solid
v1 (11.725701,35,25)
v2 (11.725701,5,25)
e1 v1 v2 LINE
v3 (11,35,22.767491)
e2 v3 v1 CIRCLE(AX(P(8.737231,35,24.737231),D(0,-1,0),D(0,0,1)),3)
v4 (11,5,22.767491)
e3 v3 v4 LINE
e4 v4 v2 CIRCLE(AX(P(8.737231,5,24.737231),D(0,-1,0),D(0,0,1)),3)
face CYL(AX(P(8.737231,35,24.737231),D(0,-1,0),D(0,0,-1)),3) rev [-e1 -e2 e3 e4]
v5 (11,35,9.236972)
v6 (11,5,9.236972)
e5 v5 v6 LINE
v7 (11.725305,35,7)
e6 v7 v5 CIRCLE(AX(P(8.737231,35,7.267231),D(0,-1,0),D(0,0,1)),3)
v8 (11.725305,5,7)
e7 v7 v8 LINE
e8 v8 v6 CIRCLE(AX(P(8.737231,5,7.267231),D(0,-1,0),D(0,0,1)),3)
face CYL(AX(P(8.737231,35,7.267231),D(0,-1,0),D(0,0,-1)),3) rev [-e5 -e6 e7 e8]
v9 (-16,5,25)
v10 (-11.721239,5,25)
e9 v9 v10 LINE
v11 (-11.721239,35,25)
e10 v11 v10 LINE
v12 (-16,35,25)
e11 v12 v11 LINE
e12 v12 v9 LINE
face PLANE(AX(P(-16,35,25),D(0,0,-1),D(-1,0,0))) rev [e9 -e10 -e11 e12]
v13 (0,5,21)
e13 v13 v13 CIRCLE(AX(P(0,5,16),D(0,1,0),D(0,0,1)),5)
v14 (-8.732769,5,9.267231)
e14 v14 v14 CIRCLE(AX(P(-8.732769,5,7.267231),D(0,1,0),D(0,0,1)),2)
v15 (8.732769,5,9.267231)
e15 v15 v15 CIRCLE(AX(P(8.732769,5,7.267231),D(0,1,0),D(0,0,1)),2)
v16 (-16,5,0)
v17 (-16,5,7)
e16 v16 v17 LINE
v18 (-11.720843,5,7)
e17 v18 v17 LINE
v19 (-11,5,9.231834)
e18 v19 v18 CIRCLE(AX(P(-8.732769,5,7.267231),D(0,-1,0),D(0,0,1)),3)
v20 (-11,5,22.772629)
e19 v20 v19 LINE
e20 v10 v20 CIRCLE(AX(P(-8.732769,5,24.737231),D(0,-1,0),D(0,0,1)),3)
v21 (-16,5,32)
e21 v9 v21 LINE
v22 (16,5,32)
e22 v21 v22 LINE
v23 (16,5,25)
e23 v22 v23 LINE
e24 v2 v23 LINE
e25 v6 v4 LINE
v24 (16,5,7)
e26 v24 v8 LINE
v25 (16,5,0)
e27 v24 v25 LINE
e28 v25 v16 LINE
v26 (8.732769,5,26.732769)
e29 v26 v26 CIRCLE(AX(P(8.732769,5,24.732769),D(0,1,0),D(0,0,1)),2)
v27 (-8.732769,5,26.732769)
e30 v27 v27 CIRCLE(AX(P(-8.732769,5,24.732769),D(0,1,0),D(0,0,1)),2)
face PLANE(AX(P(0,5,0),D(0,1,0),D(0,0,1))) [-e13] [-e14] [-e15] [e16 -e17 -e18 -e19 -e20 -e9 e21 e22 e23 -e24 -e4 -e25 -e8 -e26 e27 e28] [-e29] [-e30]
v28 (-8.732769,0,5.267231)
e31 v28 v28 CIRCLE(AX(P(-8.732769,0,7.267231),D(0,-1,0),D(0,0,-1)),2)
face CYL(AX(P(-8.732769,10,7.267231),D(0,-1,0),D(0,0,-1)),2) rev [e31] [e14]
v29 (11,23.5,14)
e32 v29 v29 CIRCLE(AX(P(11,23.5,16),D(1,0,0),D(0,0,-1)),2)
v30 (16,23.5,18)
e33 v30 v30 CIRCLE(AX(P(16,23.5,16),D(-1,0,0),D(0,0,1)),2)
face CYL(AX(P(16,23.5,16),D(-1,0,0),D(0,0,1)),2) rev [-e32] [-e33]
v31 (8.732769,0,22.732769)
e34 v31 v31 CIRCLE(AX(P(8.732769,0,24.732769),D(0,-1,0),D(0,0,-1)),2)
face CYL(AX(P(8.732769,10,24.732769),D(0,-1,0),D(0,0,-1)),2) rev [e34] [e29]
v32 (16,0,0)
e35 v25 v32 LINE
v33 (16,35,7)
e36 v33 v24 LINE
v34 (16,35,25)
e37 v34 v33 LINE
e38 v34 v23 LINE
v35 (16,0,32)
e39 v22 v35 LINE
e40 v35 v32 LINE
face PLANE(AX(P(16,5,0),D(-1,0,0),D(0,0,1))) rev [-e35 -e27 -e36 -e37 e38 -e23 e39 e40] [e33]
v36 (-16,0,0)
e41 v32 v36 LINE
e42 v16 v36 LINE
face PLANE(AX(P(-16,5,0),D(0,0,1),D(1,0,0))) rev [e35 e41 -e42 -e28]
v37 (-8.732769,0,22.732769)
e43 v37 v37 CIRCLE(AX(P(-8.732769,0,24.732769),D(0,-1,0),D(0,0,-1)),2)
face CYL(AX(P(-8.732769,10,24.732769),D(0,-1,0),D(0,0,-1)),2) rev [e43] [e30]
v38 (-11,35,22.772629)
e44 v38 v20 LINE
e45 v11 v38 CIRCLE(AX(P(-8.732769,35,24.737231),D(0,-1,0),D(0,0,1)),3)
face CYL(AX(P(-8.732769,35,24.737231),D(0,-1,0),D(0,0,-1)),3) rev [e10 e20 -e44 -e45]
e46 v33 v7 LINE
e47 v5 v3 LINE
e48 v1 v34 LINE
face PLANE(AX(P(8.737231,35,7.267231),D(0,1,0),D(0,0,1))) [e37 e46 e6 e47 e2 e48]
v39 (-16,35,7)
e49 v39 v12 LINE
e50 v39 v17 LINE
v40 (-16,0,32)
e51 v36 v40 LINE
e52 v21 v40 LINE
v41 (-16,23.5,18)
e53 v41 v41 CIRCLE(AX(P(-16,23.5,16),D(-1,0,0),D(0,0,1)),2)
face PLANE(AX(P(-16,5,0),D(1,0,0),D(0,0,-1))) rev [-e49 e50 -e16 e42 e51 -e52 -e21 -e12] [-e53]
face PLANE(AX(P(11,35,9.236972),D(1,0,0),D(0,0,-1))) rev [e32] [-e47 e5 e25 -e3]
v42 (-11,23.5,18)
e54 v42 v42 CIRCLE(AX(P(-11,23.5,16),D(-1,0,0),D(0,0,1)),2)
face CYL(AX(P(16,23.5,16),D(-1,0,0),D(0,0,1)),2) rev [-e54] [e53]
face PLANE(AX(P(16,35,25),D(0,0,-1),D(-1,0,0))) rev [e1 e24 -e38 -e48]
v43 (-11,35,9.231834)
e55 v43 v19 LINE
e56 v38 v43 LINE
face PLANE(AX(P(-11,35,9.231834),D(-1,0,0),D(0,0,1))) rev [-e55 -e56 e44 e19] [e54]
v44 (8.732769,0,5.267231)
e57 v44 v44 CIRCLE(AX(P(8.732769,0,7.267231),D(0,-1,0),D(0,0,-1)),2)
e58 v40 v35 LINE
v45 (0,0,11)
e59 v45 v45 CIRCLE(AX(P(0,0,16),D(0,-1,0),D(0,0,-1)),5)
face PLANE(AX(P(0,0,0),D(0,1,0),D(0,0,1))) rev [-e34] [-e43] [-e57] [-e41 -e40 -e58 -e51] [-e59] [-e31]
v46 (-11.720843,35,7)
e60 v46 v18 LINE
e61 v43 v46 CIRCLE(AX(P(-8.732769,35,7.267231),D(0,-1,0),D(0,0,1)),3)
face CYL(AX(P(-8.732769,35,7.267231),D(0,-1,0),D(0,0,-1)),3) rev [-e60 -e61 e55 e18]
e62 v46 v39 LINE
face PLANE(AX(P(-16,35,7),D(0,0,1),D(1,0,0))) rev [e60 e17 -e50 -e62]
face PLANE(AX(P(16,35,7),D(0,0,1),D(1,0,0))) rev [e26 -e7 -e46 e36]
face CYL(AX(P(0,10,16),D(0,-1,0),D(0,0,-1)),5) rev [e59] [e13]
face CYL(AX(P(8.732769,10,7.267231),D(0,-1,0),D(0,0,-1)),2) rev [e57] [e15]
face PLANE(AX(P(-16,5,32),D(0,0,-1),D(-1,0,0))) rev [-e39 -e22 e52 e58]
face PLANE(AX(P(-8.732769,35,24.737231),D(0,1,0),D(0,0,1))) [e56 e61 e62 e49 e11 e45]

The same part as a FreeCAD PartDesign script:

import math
import FreeCAD as App
import Part
import Sketcher
from FreeCAD import Vector
Q = App.Units.Quantity

doc = App.newDocument("Part")
body = doc.addObject("PartDesign::Body", "Body")

# Sketch on XZ plane
sketch1 = body.newObject("Sketcher::SketchObject", "Sketch")
sketch1.AttachmentSupport = (doc.getObject("XZ_Plane"), [""])
sketch1.MapMode = "FlatFace"
sketch1.addGeometry(Part.LineSegment(Vector(-16, 0, 0), Vector(-16, 32, 0)), False)
sketch1.addGeometry(Part.LineSegment(Vector(-16, 32, 0), Vector(16, 32, 0)), False)
sketch1.addGeometry(Part.LineSegment(Vector(16, 32, 0), Vector(16, 0, 0)), False)
sketch1.addGeometry(Part.LineSegment(Vector(16, 0, 0), Vector(-16, 0, 0)), False)
sketch1.addConstraint(Sketcher.Constraint("Coincident", 0, 2, 1, 1))
sketch1.addConstraint(Sketcher.Constraint("Coincident", 1, 2, 2, 1))
sketch1.addConstraint(Sketcher.Constraint("Coincident", 2, 2, 3, 1))
sketch1.addConstraint(Sketcher.Constraint("Coincident", 3, 2, 0, 1))
sketch1.addConstraint(Sketcher.Constraint("Vertical", 0))
sketch1.addConstraint(Sketcher.Constraint("Horizontal", 1))
sketch1.addConstraint(Sketcher.Constraint("Vertical", 2))
sketch1.addConstraint(Sketcher.Constraint("Horizontal", 3))
sketch1.addConstraint(Sketcher.Constraint("Symmetric", 2, 2, 3, 2, -1, 1))
sketch1.addConstraint(Sketcher.Constraint("Equal", 3, 0))
sketch1.addConstraint(Sketcher.Constraint("DistanceX", 1, 1, 1, 2, Q("32 mm")))
pad1 = body.newObject("PartDesign::Pad", "Pad")
pad1.Profile = sketch1
pad1.Length = 5
pad1.Reversed = True

# Sketch on XZ plane
sketch2 = body.newObject("Sketcher::SketchObject", "Sketch001")
sketch2.AttachmentSupport = (doc.getObject("XZ_Plane"), [""])
sketch2.MapMode = "FlatFace"
sketch2.AttachmentOffset = App.Placement(Vector(0, 0, -5), App.Rotation())
sketch2.addGeometry(Part.LineSegment(Vector(-11.7, 7, 0), Vector(-16, 7, 0)), False)
sketch2.addGeometry(Part.LineSegment(Vector(-16, 7, 0), Vector(-16, 25, 0)), False)
sketch2.addGeometry(Part.LineSegment(Vector(-16, 25, 0), Vector(-11.7, 25, 0)), False)
sketch2.addGeometry(Part.ArcOfCircle(Part.Circle(Vector(-8.7, 24.7, 0), Vector(0, 0, 1), 3), math.radians(175), math.radians(221)), False)
sketch2.addGeometry(Part.LineSegment(Vector(-11, 22.8, 0), Vector(-11, 9.2, 0)), False)
sketch2.addGeometry(Part.ArcOfCircle(Part.Circle(Vector(-8.7, 7.3, 0), Vector(0, 0, 1), 3), math.radians(139), math.radians(185)), False)
sketch2.addGeometry(Part.LineSegment(Vector(11.7, 25, 0), Vector(16, 25, 0)), False)
sketch2.addGeometry(Part.LineSegment(Vector(16, 25, 0), Vector(16, 7, 0)), False)
sketch2.addGeometry(Part.LineSegment(Vector(16, 7, 0), Vector(11.7, 7, 0)), False)
sketch2.addGeometry(Part.ArcOfCircle(Part.Circle(Vector(8.7, 7.3, 0), Vector(0, 0, 1), 3), math.radians(-5), math.radians(41)), False)
sketch2.addGeometry(Part.LineSegment(Vector(11, 9.2, 0), Vector(11, 22.8, 0)), False)
sketch2.addGeometry(Part.ArcOfCircle(Part.Circle(Vector(8.7, 24.7, 0), Vector(0, 0, 1), 3), math.radians(-41), math.radians(5)), False)
sketch2.addConstraint(Sketcher.Constraint("Coincident", 0, 2, 1, 1))
sketch2.addConstraint(Sketcher.Constraint("Coincident", 1, 2, 2, 1))
sketch2.addConstraint(Sketcher.Constraint("Coincident", 2, 2, 3, 1))
sketch2.addConstraint(Sketcher.Constraint("Coincident", 3, 2, 4, 1))
sketch2.addConstraint(Sketcher.Constraint("Coincident", 4, 2, 5, 1))
sketch2.addConstraint(Sketcher.Constraint("Coincident", 5, 2, 0, 1))
sketch2.addConstraint(Sketcher.Constraint("Coincident", 6, 2, 7, 1))
sketch2.addConstraint(Sketcher.Constraint("Coincident", 7, 2, 8, 1))
sketch2.addConstraint(Sketcher.Constraint("Coincident", 8, 2, 9, 1))
sketch2.addConstraint(Sketcher.Constraint("Coincident", 9, 2, 10, 1))
sketch2.addConstraint(Sketcher.Constraint("Coincident", 10, 2, 11, 1))
sketch2.addConstraint(Sketcher.Constraint("Coincident", 11, 2, 6, 1))
sketch2.addConstraint(Sketcher.Constraint("Horizontal", 0))
sketch2.addConstraint(Sketcher.Constraint("Vertical", 1))
sketch2.addConstraint(Sketcher.Constraint("Horizontal", 2))
sketch2.addConstraint(Sketcher.Constraint("Vertical", 4))
sketch2.addConstraint(Sketcher.Constraint("Horizontal", 6))
sketch2.addConstraint(Sketcher.Constraint("Vertical", 7))
sketch2.addConstraint(Sketcher.Constraint("Horizontal", 8))
sketch2.addConstraint(Sketcher.Constraint("Vertical", 10))
sketch2.addConstraint(Sketcher.Constraint("Equal", 3, 5))
sketch2.addConstraint(Sketcher.Constraint("Equal", 5, 9))
sketch2.addConstraint(Sketcher.Constraint("Equal", 9, 11))
sketch2.addConstraint(Sketcher.Constraint("Symmetric", 1, 2, 6, 2, -2))
sketch2.addConstraint(Sketcher.Constraint("Horizontal", 5, 3, 9, 3))
sketch2.addConstraint(Sketcher.Constraint("Horizontal", 3, 3, 11, 3))
sketch2.addConstraint(Sketcher.Constraint("Horizontal", 5, 2, 7, 2))
sketch2.addConstraint(Sketcher.Constraint("Vertical", 3, 3, 5, 3))
sketch2.addConstraint(Sketcher.Constraint("Vertical", 9, 3, 11, 3))
sketch2.addConstraint(Sketcher.Constraint("Radius", 3, Q("3 mm")))
sketch2.addConstraint(Sketcher.Constraint("DistanceY", 1, 1, 1, 2, Q("18 mm")))
sketch2.addConstraint(Sketcher.Constraint("DistanceX", 0, 2, -1, 1, Q("16 mm")))
sketch2.addConstraint(Sketcher.Constraint("DistanceY", -1, 1, 0, 2, Q("7 mm")))
sketch2.addConstraint(Sketcher.Constraint("DistanceX", 3, 2, -1, 1, Q("11 mm")))
sketch2.addConstraint(Sketcher.Constraint("DistanceX", -1, 1, 9, 2, Q("11 mm")))
sketch2.addConstraint(Sketcher.Constraint("DistanceY", 5, 3, 3, 3, Q("17.47 mm")))
sketch2.addConstraint(Sketcher.Constraint("DistanceX", 5, 3, 9, 3, Q("17.47 mm")))
sketch2.addConstraint(Sketcher.Constraint("DistanceX", 6, 1, 6, 2, Q("4.274299 mm")))
sketch2.addConstraint(Sketcher.Constraint("DistanceX", 2, 1, 2, 2, Q("4.278761 mm")))
pad2 = body.newObject("PartDesign::Pad", "Pad001")
pad2.Profile = sketch2
pad2.Length = 30
pad2.Reversed = True

# Sketch on XZ plane
sketch3 = body.newObject("Sketcher::SketchObject", "Sketch002")
sketch3.AttachmentSupport = (doc.getObject("XZ_Plane"), [""])
sketch3.MapMode = "FlatFace"
sketch3.addGeometry(Part.Circle(Vector(0, 16, 0), Vector(0, 0, 1), 5), False)
sketch3.addGeometry(Part.Circle(Vector(-8.7, 7.3, 0), Vector(0, 0, 1), 2), False)
sketch3.addGeometry(Part.Circle(Vector(-8.7, 24.7, 0), Vector(0, 0, 1), 2), False)
sketch3.addGeometry(Part.Circle(Vector(8.7, 24.7, 0), Vector(0, 0, 1), 2), False)
sketch3.addGeometry(Part.Circle(Vector(8.7, 7.3, 0), Vector(0, 0, 1), 2), False)
sketch3.addConstraint(Sketcher.Constraint("Equal", 1, 2))
sketch3.addConstraint(Sketcher.Constraint("Equal", 2, 3))
sketch3.addConstraint(Sketcher.Constraint("Equal", 3, 4))
sketch3.addConstraint(Sketcher.Constraint("Symmetric", 2, 3, 3, 3, -2))
sketch3.addConstraint(Sketcher.Constraint("Symmetric", 1, 3, 4, 3, -2))
sketch3.addConstraint(Sketcher.Constraint("PointOnObject", 0, 3, -2))
sketch3.addConstraint(Sketcher.Constraint("Vertical", 1, 3, 2, 3))
sketch3.addConstraint(Sketcher.Constraint("Diameter", 0, Q("10 mm")))
sketch3.addConstraint(Sketcher.Constraint("Diameter", 1, Q("4 mm")))
sketch3.addConstraint(Sketcher.Constraint("DistanceY", -1, 1, 0, 3, Q("16 mm")))
sketch3.addConstraint(Sketcher.Constraint("DistanceX", 1, 3, -1, 1, Q("8.732769 mm")))
sketch3.addConstraint(Sketcher.Constraint("DistanceY", -1, 1, 1, 3, Q("7.267231 mm")))
sketch3.addConstraint(Sketcher.Constraint("DistanceY", -1, 1, 2, 3, Q("24.732769 mm")))
pocket1 = body.newObject("PartDesign::Pocket", "Pocket")
pocket1.Profile = sketch3
pocket1.Length = 10

# Sketch on YZ plane
sketch4 = body.newObject("Sketcher::SketchObject", "Sketch003")
sketch4.AttachmentSupport = (doc.getObject("YZ_Plane"), [""])
sketch4.MapMode = "FlatFace"
sketch4.AttachmentOffset = App.Placement(Vector(0, 0, -16), App.Rotation())
sketch4.addGeometry(Part.Circle(Vector(23.5, 16, 0), Vector(0, 0, 1), 2), False)
sketch4.addConstraint(Sketcher.Constraint("Diameter", 0, Q("4 mm")))
sketch4.addConstraint(Sketcher.Constraint("DistanceY", -1, 1, 0, 3, Q("16 mm")))
sketch4.addConstraint(Sketcher.Constraint("DistanceX", -1, 1, 0, 3, Q("23.5 mm")))
pocket2 = body.newObject("PartDesign::Pocket", "Pocket001")
pocket2.Profile = sketch4
pocket2.Type = "ThroughAll"
pocket2.Reversed = True

doc.recompute()
